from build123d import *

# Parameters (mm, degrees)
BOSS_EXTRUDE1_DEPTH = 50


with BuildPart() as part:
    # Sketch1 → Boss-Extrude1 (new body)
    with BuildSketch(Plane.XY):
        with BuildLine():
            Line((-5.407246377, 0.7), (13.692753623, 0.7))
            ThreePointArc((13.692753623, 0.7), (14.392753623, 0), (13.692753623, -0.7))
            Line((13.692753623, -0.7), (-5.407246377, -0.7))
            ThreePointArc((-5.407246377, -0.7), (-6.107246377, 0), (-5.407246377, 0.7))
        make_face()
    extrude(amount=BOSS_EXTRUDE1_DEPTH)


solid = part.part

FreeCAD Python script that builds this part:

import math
import FreeCAD as App
import Part
import Sketcher

V = App.Vector

doc = App.newDocument("Part")
params = doc.addObject("Spreadsheet::Sheet", "Params")
for row, (alias, value) in enumerate([
    ("sketch1_radius", "0.7 mm"),
    ("sketch1_width", "19.1 mm"),
    ("pad1_length", "50 mm"),
], start=1):
    params.set(f"A{row}", alias)
    params.set(f"B{row}", "=" + value)
    params.setAlias(f"B{row}", alias)

body = doc.addObject("PartDesign::Body", "Body")

# Sketch on XY plane
sketch1 = body.newObject("Sketcher::SketchObject", "Sketch")
sketch1.AttachmentSupport = (doc.getObject("XY_Plane"), [""])
sketch1.MapMode = "FlatFace"
sketch1.addGeometry(Part.LineSegment(V(13.692754, 0.7, 0), V(-5.407246, 0.7, 0)), False)
sketch1.addGeometry(Part.ArcOfCircle(Part.Circle(V(-5.407246, 0, 0), V(0, 0, 1), 0.7), math.radians(90), math.radians(270)), False)
sketch1.addGeometry(Part.LineSegment(V(-5.407246, -0.7, 0), V(13.692754, -0.7, 0)), False)
sketch1.addGeometry(Part.ArcOfCircle(Part.Circle(V(13.692754, 0, 0), V(0, 0, 1), 0.7), math.radians(-90), math.radians(90)), False)
sketch1.addConstraint(Sketcher.Constraint("Tangent", 0, 2, 1, 1))
sketch1.addConstraint(Sketcher.Constraint("Tangent", 1, 2, 2, 1))
sketch1.addConstraint(Sketcher.Constraint("Tangent", 2, 2, 3, 1))
sketch1.addConstraint(Sketcher.Constraint("Tangent", 3, 2, 0, 1))
sketch1.addConstraint(Sketcher.Constraint("Horizontal", 0))
sketch1.addConstraint(Sketcher.Constraint("Horizontal", 2))
sketch1.addConstraint(Sketcher.Constraint("PointOnObject", 1, 3, -1))
sketch1.addConstraint(Sketcher.Constraint("Radius", 1, 0.7))
sketch1.addConstraint(Sketcher.Constraint("DistanceX", 0, 2, 0, 1, 19.1))
sketch1.addConstraint(Sketcher.Constraint("DistanceX", 1, 3, -1, 1, 5.407246))
sketch1.setExpression("Constraints[7]", "Params.sketch1_radius")
sketch1.setExpression("Constraints[8]", "Params.sketch1_width")
pad1 = body.newObject("PartDesign::Pad", "Pad")
pad1.Profile = sketch1
pad1.setExpression("Length", "Params.pad1_length")

doc.recompute()
